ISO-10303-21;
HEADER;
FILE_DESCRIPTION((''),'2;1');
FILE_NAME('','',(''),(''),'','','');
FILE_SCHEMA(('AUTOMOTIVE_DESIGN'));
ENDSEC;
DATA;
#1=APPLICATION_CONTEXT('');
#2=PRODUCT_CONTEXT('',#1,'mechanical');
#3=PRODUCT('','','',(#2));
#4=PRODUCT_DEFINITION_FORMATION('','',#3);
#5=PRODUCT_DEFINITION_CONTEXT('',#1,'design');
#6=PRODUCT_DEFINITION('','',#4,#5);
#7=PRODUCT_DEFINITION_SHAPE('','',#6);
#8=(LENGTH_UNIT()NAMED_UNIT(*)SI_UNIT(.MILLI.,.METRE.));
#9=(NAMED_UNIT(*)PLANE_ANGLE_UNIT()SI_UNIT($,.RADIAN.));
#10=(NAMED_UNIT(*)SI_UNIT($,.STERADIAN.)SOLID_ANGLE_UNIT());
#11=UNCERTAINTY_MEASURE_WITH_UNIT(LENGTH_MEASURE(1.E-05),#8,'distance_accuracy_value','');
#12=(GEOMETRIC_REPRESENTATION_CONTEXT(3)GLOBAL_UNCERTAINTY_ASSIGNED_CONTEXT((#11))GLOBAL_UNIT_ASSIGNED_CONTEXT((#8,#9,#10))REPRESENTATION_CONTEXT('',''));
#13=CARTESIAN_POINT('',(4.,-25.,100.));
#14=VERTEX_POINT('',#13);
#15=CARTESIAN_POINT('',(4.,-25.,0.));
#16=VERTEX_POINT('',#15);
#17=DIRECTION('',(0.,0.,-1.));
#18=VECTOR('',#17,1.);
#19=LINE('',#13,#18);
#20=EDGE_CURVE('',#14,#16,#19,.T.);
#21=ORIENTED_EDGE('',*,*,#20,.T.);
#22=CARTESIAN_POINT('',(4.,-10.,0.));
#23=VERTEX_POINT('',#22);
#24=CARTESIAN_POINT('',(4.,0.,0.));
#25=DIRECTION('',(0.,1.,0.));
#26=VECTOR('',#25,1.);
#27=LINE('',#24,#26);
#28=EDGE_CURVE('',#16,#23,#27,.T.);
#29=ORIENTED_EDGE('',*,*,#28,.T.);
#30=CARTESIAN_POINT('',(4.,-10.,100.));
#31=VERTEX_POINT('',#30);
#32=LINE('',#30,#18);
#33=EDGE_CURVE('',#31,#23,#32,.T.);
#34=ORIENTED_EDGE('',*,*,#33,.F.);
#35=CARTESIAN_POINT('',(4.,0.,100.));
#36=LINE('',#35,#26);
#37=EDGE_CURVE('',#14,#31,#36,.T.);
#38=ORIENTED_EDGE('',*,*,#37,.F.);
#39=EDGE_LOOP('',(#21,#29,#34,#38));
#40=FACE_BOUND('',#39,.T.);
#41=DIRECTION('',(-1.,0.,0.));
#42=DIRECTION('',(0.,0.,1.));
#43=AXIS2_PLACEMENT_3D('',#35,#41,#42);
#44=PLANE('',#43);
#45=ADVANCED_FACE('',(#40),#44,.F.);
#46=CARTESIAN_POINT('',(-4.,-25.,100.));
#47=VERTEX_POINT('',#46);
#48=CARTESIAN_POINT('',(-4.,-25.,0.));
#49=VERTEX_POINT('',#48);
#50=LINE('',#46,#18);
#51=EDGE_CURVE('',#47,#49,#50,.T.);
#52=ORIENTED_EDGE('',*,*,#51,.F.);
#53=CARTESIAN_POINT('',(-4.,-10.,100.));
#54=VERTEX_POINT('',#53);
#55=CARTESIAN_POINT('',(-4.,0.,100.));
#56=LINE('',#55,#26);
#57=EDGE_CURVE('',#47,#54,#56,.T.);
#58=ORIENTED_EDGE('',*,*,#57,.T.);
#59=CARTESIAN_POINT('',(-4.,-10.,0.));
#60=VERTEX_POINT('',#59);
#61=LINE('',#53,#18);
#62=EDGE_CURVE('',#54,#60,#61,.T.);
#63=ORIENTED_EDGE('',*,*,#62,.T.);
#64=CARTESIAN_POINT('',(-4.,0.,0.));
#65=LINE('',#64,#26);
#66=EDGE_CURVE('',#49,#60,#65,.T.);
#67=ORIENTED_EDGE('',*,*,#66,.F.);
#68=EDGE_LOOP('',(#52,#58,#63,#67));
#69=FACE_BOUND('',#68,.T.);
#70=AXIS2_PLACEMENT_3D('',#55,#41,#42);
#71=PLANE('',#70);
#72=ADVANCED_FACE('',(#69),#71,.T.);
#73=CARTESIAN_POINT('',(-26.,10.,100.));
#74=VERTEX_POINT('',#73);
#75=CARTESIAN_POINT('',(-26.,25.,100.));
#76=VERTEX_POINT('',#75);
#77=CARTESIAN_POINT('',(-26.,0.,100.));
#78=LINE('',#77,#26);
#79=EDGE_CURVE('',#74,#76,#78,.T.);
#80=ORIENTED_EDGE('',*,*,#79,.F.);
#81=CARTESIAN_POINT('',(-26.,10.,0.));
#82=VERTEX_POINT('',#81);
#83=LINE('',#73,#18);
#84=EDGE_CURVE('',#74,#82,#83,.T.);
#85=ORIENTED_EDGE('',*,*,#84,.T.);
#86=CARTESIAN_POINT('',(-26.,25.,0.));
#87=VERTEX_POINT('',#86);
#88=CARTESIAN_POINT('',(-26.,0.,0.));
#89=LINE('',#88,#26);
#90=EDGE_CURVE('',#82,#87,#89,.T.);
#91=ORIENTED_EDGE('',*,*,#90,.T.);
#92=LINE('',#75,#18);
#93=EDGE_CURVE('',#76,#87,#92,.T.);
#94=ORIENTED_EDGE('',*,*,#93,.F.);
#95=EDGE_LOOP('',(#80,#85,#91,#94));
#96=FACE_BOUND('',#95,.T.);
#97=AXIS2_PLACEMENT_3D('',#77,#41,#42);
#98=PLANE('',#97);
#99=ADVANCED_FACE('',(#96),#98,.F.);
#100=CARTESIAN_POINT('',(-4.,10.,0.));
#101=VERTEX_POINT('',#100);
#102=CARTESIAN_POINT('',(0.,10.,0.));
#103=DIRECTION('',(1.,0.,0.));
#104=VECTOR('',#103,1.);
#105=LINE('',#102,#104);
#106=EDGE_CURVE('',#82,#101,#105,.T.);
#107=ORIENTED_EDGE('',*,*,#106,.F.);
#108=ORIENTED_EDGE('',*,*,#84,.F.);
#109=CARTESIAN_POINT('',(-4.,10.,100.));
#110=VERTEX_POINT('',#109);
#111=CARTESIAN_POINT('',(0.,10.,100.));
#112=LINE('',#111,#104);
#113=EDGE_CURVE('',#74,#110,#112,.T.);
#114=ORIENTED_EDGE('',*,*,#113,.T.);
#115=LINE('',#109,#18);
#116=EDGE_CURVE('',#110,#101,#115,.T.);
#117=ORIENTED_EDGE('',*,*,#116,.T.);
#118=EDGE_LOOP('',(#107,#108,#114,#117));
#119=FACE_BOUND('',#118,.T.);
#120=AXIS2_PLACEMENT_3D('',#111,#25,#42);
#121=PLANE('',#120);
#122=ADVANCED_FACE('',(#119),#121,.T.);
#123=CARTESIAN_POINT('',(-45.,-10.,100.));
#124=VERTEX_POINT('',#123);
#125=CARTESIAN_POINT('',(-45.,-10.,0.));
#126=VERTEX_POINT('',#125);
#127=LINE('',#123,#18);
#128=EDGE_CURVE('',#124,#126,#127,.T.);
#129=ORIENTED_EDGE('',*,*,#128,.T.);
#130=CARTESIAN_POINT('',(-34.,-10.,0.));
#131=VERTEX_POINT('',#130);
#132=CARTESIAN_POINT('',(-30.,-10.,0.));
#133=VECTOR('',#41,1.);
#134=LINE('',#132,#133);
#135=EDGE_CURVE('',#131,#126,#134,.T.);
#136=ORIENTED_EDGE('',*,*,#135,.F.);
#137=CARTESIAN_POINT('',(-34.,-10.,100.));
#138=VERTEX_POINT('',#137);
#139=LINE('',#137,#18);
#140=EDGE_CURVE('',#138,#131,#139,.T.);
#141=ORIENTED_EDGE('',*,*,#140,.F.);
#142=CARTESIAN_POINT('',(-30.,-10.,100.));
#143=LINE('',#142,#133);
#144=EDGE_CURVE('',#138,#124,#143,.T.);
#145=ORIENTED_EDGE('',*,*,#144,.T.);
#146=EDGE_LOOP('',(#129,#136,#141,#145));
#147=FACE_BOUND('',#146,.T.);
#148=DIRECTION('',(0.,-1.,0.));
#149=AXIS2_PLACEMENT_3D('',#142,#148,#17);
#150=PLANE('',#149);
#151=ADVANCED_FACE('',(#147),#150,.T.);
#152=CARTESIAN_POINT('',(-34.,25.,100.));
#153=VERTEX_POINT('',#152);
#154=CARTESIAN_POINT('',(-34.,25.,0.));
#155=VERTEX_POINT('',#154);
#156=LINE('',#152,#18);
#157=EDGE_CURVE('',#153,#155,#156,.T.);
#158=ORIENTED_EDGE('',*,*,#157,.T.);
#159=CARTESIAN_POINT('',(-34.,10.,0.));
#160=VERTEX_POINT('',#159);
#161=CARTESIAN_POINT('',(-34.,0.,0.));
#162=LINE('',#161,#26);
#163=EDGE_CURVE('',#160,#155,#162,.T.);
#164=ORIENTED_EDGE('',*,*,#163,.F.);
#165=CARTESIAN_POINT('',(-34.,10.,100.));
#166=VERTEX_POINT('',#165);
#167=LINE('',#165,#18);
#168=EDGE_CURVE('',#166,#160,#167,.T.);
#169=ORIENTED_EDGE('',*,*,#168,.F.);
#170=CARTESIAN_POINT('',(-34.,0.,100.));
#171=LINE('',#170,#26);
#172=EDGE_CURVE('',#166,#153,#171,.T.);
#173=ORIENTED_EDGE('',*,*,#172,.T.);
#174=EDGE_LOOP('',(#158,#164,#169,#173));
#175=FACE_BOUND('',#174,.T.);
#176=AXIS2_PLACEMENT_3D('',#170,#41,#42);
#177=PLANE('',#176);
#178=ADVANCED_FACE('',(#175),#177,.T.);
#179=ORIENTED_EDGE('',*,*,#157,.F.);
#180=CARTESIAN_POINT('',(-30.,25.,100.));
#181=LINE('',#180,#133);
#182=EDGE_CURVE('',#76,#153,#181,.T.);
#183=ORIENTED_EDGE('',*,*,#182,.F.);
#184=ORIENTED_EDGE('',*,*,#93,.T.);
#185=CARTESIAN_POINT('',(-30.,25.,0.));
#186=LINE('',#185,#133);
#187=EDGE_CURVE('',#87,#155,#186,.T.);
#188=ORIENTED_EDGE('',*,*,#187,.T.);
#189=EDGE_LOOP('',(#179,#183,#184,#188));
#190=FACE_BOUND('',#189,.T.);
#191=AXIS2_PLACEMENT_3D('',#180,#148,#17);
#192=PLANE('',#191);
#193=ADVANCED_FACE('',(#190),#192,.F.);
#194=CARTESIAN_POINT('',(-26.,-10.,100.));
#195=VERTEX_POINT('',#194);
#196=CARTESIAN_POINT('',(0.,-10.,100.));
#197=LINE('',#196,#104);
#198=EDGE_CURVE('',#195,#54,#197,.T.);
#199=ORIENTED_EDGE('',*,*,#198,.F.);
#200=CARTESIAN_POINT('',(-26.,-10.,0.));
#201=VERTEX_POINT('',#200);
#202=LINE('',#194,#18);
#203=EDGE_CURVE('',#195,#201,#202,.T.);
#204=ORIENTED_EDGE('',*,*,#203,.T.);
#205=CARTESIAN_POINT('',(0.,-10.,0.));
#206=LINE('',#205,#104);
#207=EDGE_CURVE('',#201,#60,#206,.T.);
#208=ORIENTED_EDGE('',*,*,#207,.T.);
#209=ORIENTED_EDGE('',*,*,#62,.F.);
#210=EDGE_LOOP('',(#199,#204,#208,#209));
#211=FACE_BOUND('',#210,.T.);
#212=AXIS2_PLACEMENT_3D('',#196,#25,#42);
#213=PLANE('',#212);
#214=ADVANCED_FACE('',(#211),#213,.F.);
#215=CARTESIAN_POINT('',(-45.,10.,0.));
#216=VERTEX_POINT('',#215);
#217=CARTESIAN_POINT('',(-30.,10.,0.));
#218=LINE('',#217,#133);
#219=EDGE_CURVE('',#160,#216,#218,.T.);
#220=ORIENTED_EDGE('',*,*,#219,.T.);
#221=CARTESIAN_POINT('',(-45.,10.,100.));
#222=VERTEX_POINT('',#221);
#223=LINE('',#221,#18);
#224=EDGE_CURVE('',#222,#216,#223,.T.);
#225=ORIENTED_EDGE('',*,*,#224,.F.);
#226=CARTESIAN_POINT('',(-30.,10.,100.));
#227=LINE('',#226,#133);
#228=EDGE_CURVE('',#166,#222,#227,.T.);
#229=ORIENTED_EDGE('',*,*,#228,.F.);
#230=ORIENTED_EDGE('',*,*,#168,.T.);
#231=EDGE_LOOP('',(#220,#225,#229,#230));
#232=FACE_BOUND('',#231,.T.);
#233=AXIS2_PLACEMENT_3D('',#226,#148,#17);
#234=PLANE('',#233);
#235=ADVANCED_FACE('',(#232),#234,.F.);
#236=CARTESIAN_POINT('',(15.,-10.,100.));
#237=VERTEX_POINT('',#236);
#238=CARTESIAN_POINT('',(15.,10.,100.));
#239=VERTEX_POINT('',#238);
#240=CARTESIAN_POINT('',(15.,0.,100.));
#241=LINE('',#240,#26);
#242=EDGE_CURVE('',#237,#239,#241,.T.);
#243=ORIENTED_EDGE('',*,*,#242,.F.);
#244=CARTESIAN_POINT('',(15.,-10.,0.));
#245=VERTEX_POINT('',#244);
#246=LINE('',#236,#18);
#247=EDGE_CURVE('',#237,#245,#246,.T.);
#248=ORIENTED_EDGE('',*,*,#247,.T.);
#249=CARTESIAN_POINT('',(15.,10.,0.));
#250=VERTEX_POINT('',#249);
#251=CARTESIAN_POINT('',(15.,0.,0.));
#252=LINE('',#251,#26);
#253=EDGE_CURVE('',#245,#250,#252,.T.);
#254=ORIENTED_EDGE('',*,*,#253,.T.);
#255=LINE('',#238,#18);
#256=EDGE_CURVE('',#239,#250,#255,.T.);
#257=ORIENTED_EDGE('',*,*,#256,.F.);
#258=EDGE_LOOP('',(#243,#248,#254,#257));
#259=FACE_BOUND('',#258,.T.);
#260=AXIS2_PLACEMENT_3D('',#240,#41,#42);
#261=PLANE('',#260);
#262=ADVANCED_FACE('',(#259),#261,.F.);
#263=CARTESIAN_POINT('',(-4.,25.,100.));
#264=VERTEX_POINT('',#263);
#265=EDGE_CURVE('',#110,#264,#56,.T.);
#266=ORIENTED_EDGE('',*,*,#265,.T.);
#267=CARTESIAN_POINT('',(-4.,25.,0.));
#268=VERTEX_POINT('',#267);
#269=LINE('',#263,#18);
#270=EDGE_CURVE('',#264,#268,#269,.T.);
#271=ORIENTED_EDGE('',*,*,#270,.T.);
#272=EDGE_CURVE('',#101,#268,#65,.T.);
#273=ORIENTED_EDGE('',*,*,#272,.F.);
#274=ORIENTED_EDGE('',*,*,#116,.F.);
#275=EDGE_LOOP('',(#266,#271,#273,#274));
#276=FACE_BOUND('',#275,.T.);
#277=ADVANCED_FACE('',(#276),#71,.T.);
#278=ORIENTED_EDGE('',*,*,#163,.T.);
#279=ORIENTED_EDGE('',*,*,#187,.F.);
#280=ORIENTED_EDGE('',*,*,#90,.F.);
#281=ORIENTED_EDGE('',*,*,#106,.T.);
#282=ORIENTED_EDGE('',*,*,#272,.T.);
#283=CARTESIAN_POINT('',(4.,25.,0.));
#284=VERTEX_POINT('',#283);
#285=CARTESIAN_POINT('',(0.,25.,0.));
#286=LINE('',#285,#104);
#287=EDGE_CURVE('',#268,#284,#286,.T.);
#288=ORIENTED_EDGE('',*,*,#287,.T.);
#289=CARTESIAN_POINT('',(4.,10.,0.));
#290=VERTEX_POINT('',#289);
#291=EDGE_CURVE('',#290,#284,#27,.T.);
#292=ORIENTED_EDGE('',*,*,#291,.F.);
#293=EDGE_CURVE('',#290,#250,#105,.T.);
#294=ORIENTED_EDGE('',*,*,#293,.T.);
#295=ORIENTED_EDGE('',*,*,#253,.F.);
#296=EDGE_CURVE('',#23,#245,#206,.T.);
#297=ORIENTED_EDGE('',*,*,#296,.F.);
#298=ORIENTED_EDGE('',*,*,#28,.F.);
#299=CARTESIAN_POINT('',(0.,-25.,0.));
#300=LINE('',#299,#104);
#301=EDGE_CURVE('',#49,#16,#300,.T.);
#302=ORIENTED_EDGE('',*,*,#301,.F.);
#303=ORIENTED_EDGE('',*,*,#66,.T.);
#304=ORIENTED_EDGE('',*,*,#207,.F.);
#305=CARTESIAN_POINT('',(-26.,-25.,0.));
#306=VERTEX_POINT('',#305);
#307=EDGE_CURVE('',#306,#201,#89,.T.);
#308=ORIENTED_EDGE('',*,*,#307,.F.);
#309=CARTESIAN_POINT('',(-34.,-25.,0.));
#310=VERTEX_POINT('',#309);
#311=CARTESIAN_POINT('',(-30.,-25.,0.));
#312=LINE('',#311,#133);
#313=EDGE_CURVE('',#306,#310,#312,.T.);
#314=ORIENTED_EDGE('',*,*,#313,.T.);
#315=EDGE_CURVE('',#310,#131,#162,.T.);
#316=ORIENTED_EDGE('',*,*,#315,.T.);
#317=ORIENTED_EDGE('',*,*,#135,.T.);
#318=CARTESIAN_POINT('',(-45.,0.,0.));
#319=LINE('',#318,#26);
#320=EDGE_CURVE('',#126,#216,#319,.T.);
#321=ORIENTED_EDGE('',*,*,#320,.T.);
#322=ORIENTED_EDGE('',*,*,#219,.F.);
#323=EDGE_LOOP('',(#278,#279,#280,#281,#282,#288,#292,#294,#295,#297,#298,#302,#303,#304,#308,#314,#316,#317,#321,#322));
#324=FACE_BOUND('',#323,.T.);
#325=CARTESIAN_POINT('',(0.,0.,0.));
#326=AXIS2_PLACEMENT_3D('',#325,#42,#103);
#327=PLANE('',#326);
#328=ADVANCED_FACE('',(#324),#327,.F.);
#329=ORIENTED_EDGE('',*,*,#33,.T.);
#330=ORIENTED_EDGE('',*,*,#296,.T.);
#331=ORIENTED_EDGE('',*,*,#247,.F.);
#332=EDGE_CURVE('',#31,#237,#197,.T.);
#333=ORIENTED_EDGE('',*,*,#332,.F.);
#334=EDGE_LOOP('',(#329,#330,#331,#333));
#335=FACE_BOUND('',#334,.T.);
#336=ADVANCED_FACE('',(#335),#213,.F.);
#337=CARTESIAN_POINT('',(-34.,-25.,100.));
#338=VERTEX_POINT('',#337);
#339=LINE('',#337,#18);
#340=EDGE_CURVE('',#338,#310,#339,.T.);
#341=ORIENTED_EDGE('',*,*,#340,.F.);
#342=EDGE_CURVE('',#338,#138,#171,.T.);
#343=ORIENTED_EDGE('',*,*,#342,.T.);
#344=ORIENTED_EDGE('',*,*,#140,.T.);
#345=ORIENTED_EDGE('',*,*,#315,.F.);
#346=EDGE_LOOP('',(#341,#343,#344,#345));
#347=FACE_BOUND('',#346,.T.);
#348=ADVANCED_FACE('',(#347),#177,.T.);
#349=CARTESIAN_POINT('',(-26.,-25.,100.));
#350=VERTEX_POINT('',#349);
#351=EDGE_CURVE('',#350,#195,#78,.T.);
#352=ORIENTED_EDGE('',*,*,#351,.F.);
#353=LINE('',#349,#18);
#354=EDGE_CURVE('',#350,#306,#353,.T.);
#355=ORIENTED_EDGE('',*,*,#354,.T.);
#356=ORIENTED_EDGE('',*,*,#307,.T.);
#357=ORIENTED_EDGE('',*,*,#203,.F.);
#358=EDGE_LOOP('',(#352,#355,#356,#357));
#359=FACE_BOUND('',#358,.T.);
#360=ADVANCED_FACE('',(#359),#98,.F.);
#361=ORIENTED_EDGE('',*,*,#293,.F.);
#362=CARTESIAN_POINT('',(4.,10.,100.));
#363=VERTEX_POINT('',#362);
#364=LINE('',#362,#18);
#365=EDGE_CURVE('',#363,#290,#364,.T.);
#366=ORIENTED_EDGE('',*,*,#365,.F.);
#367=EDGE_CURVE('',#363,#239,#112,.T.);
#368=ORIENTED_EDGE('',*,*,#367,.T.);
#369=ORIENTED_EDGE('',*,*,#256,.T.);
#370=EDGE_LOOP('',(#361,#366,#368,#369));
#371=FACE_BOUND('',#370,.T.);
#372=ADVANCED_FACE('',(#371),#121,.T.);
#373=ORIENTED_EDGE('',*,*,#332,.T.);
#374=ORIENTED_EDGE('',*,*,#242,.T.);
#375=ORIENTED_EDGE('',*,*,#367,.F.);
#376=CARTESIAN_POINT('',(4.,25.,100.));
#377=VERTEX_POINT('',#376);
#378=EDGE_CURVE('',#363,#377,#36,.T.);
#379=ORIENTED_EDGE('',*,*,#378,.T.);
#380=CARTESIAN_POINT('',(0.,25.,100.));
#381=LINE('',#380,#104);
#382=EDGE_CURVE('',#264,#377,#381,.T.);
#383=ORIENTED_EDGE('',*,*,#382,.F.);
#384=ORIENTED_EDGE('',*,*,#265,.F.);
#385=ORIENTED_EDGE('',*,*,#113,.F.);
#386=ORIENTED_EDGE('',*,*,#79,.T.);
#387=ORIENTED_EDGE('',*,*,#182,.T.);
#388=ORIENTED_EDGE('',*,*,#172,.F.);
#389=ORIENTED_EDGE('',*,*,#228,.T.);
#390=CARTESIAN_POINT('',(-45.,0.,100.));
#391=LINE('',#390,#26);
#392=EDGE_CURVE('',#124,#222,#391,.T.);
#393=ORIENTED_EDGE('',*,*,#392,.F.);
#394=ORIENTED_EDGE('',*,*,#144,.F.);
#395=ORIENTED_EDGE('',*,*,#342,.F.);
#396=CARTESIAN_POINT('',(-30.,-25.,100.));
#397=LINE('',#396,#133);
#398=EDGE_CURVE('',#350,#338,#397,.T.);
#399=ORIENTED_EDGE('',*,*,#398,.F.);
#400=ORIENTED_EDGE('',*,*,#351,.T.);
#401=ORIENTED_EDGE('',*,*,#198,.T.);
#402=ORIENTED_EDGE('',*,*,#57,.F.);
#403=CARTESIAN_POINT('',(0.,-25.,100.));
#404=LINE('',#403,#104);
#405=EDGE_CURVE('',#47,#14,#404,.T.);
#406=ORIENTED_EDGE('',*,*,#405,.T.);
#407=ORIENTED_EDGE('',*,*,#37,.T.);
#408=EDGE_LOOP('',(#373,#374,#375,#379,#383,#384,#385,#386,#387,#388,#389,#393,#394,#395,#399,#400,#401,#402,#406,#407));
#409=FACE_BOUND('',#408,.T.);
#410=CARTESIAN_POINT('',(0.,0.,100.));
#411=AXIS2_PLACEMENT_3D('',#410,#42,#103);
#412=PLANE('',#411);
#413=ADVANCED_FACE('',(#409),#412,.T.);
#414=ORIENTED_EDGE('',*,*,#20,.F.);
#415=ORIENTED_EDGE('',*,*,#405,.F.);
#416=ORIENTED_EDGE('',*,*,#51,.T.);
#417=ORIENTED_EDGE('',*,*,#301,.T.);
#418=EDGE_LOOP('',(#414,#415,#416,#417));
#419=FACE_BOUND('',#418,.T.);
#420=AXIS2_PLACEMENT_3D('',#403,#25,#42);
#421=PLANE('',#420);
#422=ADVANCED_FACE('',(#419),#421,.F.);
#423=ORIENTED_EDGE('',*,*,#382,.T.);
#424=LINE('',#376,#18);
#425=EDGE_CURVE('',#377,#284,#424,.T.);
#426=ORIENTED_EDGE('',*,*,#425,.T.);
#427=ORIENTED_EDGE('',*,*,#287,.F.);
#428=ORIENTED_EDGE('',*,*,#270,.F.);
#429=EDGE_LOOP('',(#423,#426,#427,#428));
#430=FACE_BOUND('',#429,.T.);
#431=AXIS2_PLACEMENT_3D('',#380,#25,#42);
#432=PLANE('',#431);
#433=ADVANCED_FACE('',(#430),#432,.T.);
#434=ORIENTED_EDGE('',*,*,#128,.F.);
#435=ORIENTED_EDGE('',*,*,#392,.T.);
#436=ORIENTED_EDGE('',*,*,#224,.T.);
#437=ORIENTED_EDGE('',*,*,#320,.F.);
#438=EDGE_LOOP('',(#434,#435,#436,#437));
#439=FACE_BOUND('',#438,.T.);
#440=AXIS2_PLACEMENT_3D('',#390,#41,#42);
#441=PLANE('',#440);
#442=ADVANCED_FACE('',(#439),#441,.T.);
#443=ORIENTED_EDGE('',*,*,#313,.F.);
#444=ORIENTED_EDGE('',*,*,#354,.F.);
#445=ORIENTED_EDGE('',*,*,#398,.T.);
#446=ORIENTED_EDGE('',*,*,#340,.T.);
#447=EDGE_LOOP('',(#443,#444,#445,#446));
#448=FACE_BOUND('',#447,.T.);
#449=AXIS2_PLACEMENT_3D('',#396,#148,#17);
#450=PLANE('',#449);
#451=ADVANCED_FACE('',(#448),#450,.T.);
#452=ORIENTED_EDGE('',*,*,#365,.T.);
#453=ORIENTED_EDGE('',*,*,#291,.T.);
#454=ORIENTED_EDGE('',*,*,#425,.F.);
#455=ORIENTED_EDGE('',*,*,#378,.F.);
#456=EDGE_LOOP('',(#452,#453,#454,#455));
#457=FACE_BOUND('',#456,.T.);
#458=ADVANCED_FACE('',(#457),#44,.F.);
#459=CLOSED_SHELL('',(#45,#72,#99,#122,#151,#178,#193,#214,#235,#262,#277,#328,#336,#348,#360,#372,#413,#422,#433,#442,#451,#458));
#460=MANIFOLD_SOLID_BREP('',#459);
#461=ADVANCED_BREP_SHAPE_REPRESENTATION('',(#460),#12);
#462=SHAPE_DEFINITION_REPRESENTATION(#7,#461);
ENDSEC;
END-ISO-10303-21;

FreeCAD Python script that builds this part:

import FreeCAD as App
import Part
import Sketcher
from FreeCAD import Vector

doc = App.newDocument("Part")
body = doc.addObject("PartDesign::Body", "Body")

# Sketch on XY plane
sketch1 = body.newObject("Sketcher::SketchObject", "Sketch")
sketch1.AttachmentSupport = (doc.getObject("XY_Plane"), [""])
sketch1.MapMode = "FlatFace"
sketch1.addGeometry(Part.LineSegment(Vector(15, -10, 0), Vector(15, 10, 0)), False)
sketch1.addGeometry(Part.LineSegment(Vector(15, 10, 0), Vector(4, 10, 0)), False)
sketch1.addGeometry(Part.LineSegment(Vector(4, 10, 0), Vector(4, 25, 0)), False)
sketch1.addGeometry(Part.LineSegment(Vector(4, 25, 0), Vector(-4, 25, 0)), False)
sketch1.addGeometry(Part.LineSegment(Vector(-4, 25, 0), Vector(-4, 10, 0)), False)
sketch1.addGeometry(Part.LineSegment(Vector(-4, 10, 0), Vector(-15, 10, 0)), False)
sketch1.addGeometry(Part.LineSegment(Vector(-15, 10, 0), Vector(-15, -10, 0)), False)
sketch1.addGeometry(Part.LineSegment(Vector(-15, -10, 0), Vector(-4, -10, 0)), False)
sketch1.addGeometry(Part.LineSegment(Vector(-4, -10, 0), Vector(-4, -25, 0)), False)
sketch1.addGeometry(Part.LineSegment(Vector(-4, -25, 0), Vector(4, -25, 0)), False)
sketch1.addGeometry(Part.LineSegment(Vector(4, -25, 0), Vector(4, -10, 0)), False)
sketch1.addGeometry(Part.LineSegment(Vector(4, -10, 0), Vector(15, -10, 0)), False)
sketch1.addConstraint(Sketcher.Constraint("Coincident", 0, 2, 1, 1))
sketch1.addConstraint(Sketcher.Constraint("Coincident", 1, 2, 2, 1))
sketch1.addConstraint(Sketcher.Constraint("Coincident", 2, 2, 3, 1))
sketch1.addConstraint(Sketcher.Constraint("Coincident", 3, 2, 4, 1))
sketch1.addConstraint(Sketcher.Constraint("Coincident", 4, 2, 5, 1))
sketch1.addConstraint(Sketcher.Constraint("Coincident", 5, 2, 6, 1))
sketch1.addConstraint(Sketcher.Constraint("Coincident", 6, 2, 7, 1))
sketch1.addConstraint(Sketcher.Constraint("Coincident", 7, 2, 8, 1))
sketch1.addConstraint(Sketcher.Constraint("Coincident", 8, 2, 9, 1))
sketch1.addConstraint(Sketcher.Constraint("Coincident", 9, 2, 10, 1))
sketch1.addConstraint(Sketcher.Constraint("Coincident", 10, 2, 11, 1))
sketch1.addConstraint(Sketcher.Constraint("Coincident", 11, 2, 0, 1))
sketch1.addConstraint(Sketcher.Constraint("Vertical", 0))
sketch1.addConstraint(Sketcher.Constraint("Horizontal", 1))
sketch1.addConstraint(Sketcher.Constraint("Vertical", 2))
sketch1.addConstraint(Sketcher.Constraint("Horizontal", 3))
sketch1.addConstraint(Sketcher.Constraint("Vertical", 4))
sketch1.addConstraint(Sketcher.Constraint("Horizontal", 5))
sketch1.addConstraint(Sketcher.Constraint("Vertical", 6))
sketch1.addConstraint(Sketcher.Constraint("Horizontal", 7))
sketch1.addConstraint(Sketcher.Constraint("Vertical", 8))
sketch1.addConstraint(Sketcher.Constraint("Horizontal", 9))
sketch1.addConstraint(Sketcher.Constraint("Vertical", 10))
sketch1.addConstraint(Sketcher.Constraint("Horizontal", 11))
sketch1.addConstraint(Sketcher.Constraint("Symmetric", 0, 2, 6, 2, -1, 1))
sketch1.addConstraint(Sketcher.Constraint("Symmetric", 2, 2, 8, 2, -1, 1))
sketch1.addConstraint(Sketcher.Constraint("Symmetric", 4, 2, 10, 2, -1, 1))
sketch1.addConstraint(Sketcher.Constraint("Symmetric", 1, 2, 4, 2, -2))
sketch1.addConstraint(Sketcher.Constraint("DistanceX", 1, 2, 1, 1, 11.0))
sketch1.addConstraint(Sketcher.Constraint("DistanceX", 3, 2, 3, 1, 8.0))
sketch1.addConstraint(Sketcher.Constraint("DistanceY", 0, 1, 0, 2, 20.0))
sketch1.addConstraint(Sketcher.Constraint("DistanceY", 2, 1, 2, 2, 15.0))
pad1 = body.newObject("PartDesign::Pad", "Pad")
pad1.Profile = sketch1
pad1.Length = 100
doc.recompute()

datumplane = body.newObject("PartDesign::Plane", "DatumPlane")
datumplane.AttachmentSupport = (doc.getObject("YZ_Plane"), [""])
datumplane.MapMode = "FlatFace"
datumplane.AttachmentOffset = App.Placement(Vector(0, 0, -15), App.Rotation())
mirrored = body.newObject("PartDesign::Mirrored", "Mirrored")
mirrored.Originals = [pad1]
mirrored.MirrorPlane = (datumplane, [""])
body.Tip = mirrored

doc.recompute()
